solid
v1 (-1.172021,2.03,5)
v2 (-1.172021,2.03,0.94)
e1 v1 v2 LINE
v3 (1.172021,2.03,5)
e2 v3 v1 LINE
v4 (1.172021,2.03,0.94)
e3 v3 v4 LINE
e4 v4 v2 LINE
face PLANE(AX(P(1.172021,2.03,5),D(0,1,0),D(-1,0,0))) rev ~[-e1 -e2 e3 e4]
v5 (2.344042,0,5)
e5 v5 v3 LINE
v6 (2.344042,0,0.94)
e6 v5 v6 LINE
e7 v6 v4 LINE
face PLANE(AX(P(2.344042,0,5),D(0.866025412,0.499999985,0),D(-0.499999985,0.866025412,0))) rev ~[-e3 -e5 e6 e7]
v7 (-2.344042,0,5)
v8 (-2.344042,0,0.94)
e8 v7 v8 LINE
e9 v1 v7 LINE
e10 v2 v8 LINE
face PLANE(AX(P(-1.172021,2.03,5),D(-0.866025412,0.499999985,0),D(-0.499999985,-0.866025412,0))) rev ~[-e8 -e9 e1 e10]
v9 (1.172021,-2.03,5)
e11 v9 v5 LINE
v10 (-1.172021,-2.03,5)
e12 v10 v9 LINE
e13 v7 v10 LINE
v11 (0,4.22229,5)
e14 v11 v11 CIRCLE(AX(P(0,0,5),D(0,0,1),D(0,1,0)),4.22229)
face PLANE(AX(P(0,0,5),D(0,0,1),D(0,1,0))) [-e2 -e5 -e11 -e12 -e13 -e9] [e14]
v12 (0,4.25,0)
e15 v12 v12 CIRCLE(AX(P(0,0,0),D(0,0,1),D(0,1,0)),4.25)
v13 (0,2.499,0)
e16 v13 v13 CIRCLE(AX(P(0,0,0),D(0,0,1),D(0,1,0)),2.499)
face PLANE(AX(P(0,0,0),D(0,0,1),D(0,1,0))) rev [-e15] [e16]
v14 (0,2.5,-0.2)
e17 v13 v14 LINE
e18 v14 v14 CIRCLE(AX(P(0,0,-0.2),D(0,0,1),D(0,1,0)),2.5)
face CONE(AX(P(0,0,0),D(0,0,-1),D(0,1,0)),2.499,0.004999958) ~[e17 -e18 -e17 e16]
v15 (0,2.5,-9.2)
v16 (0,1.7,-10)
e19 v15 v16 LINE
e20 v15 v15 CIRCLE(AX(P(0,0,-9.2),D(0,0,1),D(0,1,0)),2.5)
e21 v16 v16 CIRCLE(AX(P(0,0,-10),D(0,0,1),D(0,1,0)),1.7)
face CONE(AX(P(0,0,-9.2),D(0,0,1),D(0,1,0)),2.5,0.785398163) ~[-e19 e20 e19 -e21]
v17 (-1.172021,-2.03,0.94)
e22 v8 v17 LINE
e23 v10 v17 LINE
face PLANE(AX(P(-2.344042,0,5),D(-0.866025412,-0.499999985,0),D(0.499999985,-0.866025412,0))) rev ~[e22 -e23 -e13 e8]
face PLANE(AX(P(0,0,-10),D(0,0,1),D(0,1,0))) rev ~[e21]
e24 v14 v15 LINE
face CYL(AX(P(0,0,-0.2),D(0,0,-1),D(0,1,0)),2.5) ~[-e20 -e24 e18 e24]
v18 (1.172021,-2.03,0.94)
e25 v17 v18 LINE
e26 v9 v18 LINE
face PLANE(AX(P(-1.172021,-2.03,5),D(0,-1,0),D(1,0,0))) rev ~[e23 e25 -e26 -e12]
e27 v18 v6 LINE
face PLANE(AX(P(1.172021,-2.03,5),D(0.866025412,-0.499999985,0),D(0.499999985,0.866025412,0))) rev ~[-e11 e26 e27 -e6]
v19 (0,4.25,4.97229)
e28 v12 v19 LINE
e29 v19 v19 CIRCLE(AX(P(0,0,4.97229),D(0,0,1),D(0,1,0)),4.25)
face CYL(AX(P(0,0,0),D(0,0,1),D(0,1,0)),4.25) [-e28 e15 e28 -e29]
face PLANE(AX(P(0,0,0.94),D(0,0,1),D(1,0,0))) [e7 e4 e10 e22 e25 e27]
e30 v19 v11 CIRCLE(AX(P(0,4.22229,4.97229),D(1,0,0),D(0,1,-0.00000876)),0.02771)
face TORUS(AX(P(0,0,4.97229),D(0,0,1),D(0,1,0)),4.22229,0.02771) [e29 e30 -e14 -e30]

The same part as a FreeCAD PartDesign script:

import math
import FreeCAD as App
import Part
import Sketcher

V = App.Vector
Q = App.Units.Quantity

doc = App.newDocument("Part")
body = doc.addObject("PartDesign::Body", "Body")

# Sketch on YZ plane
sketch1 = body.newObject("Sketcher::SketchObject", "Sketch")
sketch1.AttachmentSupport = (doc.getObject("YZ_Plane"), [""])
sketch1.MapMode = "FlatFace"
sketch1.addGeometry([
    Part.LineSegment(V(2.499, 0, 0), V(4.25, 0, 0)),  # 0
    Part.LineSegment(V(4.25, 0, 0), V(4.25, 4.972, 0)),  # 1
    Part.ArcOfCircle(Part.Circle(V(4.222, 4.972, 0), V(0, 0, 1), 0.028), math.radians(0), math.radians(90)),  # 2
    Part.LineSegment(V(4.222, 5, 0), V(0, 5, 0)),  # 3
    Part.LineSegment(V(0, 5, 0), V(0, -10, 0)),  # 4
    Part.LineSegment(V(0, -10, 0), V(1.7, -10, 0)),  # 5
    Part.LineSegment(V(1.7, -10, 0), V(2.5, -9.2, 0)),  # 6
    Part.LineSegment(V(2.5, -9.2, 0), V(2.5, -0.2, 0)),  # 7
    Part.LineSegment(V(2.5, -0.2, 0), V(2.499, 0, 0)),  # 8
], False)
sketch1.addConstraint([
    Sketcher.Constraint("Coincident", 0, 2, 1, 1),
    Sketcher.Constraint("Coincident", 1, 2, 2, 1),
    Sketcher.Constraint("Coincident", 2, 2, 3, 1),
    Sketcher.Constraint("Coincident", 3, 2, 4, 1),
    Sketcher.Constraint("Coincident", 4, 2, 5, 1),
    Sketcher.Constraint("Coincident", 5, 2, 6, 1),
    Sketcher.Constraint("Coincident", 6, 2, 7, 1),
    Sketcher.Constraint("Coincident", 7, 2, 8, 1),
    Sketcher.Constraint("Coincident", 8, 2, 0, 1),
    Sketcher.Constraint("Horizontal", 0),
    Sketcher.Constraint("Vertical", 1),
    Sketcher.Constraint("Horizontal", 3),
    Sketcher.Constraint("Vertical", 4),
    Sketcher.Constraint("Horizontal", 5),
    Sketcher.Constraint("Vertical", 7),
    Sketcher.Constraint("PointOnObject", 0, 2, -1),
    Sketcher.Constraint("PointOnObject", 3, 2, -2),
    Sketcher.Constraint("Horizontal", 2, 3, 1, 2),
    Sketcher.Constraint("DistanceY", 4, 2, 4, 1, Q("15 mm")),
    Sketcher.Constraint("DistanceY", 7, 1, 7, 2, Q("9 mm")),
    Sketcher.Constraint("Angle", 6, Q("45 deg")),
    Sketcher.Constraint("DistanceX", 5, 1, 5, 2, Q("1.7 mm")),
    Sketcher.Constraint("DistanceY", -1, 1, 2, 2, Q("5 mm")),
    Sketcher.Constraint("DistanceX", -1, 1, 6, 2, Q("2.5 mm")),
    Sketcher.Constraint("DistanceX", 0, 1, 0, 2, Q("1.751 mm")),
    Sketcher.Constraint("DistanceX", -1, 1, 0, 2, Q("4.25 mm")),
    Sketcher.Constraint("Radius", 2, Q("0.02771 mm")),
    Sketcher.Constraint("DistanceX", 3, 2, 3, 1, Q("4.22229 mm")),
])
revolution = body.newObject("PartDesign::Revolution", "Revolution")
revolution.Profile = sketch1
revolution.ReferenceAxis = (sketch1, ["V_Axis"])
revolution.Angle = 360

# Sketch on XY plane
sketch2 = body.newObject("Sketcher::SketchObject", "Sketch001")
sketch2.AttachmentSupport = (doc.getObject("XY_Plane"), [""])
sketch2.MapMode = "FlatFace"
sketch2.AttachmentOffset = App.Placement(V(0, 0, 5), App.Rotation())
sketch2.addGeometry([
    Part.LineSegment(V(2.3, 0, 0), V(1.2, 2, 0)),  # 0
    Part.LineSegment(V(1.2, 2, 0), V(-1.2, 2, 0)),  # 1
    Part.LineSegment(V(-1.2, 2, 0), V(-2.3, 0, 0)),  # 2
    Part.LineSegment(V(-2.3, 0, 0), V(-1.2, -2, 0)),  # 3
    Part.LineSegment(V(-1.2, -2, 0), V(1.2, -2, 0)),  # 4
    Part.LineSegment(V(1.2, -2, 0), V(2.3, 0, 0)),  # 5
], False)
sketch2.addConstraint([
    Sketcher.Constraint("Coincident", 0, 2, 1, 1),
    Sketcher.Constraint("Coincident", 1, 2, 2, 1),
    Sketcher.Constraint("Coincident", 2, 2, 3, 1),
    Sketcher.Constraint("Coincident", 3, 2, 4, 1),
    Sketcher.Constraint("Coincident", 4, 2, 5, 1),
    Sketcher.Constraint("Coincident", 5, 2, 0, 1),
    Sketcher.Constraint("Horizontal", 1),
    Sketcher.Constraint("Horizontal", 4),
    Sketcher.Constraint("Symmetric", 0, 2, 3, 2, -1, 1),
    Sketcher.Constraint("Symmetric", 2, 2, 5, 2, -1, 1),
    Sketcher.Constraint("PointOnObject", 2, 2, -1),
    Sketcher.Constraint("Parallel", 2, 5),
    Sketcher.Constraint("Vertical", 1, 2, 3, 2),
    Sketcher.Constraint("Angle", 0, Q("119.999999 deg")),
    Sketcher.Constraint("DistanceY", -1, 1, 0, 2, Q("2.03 mm")),
    Sketcher.Constraint("DistanceX", 1, 2, 1, 1, Q("2.344042 mm")),
])
pocket1 = body.newObject("PartDesign::Pocket", "Pocket")
pocket1.Profile = sketch2
pocket1.Length = 4.06

doc.recompute()
